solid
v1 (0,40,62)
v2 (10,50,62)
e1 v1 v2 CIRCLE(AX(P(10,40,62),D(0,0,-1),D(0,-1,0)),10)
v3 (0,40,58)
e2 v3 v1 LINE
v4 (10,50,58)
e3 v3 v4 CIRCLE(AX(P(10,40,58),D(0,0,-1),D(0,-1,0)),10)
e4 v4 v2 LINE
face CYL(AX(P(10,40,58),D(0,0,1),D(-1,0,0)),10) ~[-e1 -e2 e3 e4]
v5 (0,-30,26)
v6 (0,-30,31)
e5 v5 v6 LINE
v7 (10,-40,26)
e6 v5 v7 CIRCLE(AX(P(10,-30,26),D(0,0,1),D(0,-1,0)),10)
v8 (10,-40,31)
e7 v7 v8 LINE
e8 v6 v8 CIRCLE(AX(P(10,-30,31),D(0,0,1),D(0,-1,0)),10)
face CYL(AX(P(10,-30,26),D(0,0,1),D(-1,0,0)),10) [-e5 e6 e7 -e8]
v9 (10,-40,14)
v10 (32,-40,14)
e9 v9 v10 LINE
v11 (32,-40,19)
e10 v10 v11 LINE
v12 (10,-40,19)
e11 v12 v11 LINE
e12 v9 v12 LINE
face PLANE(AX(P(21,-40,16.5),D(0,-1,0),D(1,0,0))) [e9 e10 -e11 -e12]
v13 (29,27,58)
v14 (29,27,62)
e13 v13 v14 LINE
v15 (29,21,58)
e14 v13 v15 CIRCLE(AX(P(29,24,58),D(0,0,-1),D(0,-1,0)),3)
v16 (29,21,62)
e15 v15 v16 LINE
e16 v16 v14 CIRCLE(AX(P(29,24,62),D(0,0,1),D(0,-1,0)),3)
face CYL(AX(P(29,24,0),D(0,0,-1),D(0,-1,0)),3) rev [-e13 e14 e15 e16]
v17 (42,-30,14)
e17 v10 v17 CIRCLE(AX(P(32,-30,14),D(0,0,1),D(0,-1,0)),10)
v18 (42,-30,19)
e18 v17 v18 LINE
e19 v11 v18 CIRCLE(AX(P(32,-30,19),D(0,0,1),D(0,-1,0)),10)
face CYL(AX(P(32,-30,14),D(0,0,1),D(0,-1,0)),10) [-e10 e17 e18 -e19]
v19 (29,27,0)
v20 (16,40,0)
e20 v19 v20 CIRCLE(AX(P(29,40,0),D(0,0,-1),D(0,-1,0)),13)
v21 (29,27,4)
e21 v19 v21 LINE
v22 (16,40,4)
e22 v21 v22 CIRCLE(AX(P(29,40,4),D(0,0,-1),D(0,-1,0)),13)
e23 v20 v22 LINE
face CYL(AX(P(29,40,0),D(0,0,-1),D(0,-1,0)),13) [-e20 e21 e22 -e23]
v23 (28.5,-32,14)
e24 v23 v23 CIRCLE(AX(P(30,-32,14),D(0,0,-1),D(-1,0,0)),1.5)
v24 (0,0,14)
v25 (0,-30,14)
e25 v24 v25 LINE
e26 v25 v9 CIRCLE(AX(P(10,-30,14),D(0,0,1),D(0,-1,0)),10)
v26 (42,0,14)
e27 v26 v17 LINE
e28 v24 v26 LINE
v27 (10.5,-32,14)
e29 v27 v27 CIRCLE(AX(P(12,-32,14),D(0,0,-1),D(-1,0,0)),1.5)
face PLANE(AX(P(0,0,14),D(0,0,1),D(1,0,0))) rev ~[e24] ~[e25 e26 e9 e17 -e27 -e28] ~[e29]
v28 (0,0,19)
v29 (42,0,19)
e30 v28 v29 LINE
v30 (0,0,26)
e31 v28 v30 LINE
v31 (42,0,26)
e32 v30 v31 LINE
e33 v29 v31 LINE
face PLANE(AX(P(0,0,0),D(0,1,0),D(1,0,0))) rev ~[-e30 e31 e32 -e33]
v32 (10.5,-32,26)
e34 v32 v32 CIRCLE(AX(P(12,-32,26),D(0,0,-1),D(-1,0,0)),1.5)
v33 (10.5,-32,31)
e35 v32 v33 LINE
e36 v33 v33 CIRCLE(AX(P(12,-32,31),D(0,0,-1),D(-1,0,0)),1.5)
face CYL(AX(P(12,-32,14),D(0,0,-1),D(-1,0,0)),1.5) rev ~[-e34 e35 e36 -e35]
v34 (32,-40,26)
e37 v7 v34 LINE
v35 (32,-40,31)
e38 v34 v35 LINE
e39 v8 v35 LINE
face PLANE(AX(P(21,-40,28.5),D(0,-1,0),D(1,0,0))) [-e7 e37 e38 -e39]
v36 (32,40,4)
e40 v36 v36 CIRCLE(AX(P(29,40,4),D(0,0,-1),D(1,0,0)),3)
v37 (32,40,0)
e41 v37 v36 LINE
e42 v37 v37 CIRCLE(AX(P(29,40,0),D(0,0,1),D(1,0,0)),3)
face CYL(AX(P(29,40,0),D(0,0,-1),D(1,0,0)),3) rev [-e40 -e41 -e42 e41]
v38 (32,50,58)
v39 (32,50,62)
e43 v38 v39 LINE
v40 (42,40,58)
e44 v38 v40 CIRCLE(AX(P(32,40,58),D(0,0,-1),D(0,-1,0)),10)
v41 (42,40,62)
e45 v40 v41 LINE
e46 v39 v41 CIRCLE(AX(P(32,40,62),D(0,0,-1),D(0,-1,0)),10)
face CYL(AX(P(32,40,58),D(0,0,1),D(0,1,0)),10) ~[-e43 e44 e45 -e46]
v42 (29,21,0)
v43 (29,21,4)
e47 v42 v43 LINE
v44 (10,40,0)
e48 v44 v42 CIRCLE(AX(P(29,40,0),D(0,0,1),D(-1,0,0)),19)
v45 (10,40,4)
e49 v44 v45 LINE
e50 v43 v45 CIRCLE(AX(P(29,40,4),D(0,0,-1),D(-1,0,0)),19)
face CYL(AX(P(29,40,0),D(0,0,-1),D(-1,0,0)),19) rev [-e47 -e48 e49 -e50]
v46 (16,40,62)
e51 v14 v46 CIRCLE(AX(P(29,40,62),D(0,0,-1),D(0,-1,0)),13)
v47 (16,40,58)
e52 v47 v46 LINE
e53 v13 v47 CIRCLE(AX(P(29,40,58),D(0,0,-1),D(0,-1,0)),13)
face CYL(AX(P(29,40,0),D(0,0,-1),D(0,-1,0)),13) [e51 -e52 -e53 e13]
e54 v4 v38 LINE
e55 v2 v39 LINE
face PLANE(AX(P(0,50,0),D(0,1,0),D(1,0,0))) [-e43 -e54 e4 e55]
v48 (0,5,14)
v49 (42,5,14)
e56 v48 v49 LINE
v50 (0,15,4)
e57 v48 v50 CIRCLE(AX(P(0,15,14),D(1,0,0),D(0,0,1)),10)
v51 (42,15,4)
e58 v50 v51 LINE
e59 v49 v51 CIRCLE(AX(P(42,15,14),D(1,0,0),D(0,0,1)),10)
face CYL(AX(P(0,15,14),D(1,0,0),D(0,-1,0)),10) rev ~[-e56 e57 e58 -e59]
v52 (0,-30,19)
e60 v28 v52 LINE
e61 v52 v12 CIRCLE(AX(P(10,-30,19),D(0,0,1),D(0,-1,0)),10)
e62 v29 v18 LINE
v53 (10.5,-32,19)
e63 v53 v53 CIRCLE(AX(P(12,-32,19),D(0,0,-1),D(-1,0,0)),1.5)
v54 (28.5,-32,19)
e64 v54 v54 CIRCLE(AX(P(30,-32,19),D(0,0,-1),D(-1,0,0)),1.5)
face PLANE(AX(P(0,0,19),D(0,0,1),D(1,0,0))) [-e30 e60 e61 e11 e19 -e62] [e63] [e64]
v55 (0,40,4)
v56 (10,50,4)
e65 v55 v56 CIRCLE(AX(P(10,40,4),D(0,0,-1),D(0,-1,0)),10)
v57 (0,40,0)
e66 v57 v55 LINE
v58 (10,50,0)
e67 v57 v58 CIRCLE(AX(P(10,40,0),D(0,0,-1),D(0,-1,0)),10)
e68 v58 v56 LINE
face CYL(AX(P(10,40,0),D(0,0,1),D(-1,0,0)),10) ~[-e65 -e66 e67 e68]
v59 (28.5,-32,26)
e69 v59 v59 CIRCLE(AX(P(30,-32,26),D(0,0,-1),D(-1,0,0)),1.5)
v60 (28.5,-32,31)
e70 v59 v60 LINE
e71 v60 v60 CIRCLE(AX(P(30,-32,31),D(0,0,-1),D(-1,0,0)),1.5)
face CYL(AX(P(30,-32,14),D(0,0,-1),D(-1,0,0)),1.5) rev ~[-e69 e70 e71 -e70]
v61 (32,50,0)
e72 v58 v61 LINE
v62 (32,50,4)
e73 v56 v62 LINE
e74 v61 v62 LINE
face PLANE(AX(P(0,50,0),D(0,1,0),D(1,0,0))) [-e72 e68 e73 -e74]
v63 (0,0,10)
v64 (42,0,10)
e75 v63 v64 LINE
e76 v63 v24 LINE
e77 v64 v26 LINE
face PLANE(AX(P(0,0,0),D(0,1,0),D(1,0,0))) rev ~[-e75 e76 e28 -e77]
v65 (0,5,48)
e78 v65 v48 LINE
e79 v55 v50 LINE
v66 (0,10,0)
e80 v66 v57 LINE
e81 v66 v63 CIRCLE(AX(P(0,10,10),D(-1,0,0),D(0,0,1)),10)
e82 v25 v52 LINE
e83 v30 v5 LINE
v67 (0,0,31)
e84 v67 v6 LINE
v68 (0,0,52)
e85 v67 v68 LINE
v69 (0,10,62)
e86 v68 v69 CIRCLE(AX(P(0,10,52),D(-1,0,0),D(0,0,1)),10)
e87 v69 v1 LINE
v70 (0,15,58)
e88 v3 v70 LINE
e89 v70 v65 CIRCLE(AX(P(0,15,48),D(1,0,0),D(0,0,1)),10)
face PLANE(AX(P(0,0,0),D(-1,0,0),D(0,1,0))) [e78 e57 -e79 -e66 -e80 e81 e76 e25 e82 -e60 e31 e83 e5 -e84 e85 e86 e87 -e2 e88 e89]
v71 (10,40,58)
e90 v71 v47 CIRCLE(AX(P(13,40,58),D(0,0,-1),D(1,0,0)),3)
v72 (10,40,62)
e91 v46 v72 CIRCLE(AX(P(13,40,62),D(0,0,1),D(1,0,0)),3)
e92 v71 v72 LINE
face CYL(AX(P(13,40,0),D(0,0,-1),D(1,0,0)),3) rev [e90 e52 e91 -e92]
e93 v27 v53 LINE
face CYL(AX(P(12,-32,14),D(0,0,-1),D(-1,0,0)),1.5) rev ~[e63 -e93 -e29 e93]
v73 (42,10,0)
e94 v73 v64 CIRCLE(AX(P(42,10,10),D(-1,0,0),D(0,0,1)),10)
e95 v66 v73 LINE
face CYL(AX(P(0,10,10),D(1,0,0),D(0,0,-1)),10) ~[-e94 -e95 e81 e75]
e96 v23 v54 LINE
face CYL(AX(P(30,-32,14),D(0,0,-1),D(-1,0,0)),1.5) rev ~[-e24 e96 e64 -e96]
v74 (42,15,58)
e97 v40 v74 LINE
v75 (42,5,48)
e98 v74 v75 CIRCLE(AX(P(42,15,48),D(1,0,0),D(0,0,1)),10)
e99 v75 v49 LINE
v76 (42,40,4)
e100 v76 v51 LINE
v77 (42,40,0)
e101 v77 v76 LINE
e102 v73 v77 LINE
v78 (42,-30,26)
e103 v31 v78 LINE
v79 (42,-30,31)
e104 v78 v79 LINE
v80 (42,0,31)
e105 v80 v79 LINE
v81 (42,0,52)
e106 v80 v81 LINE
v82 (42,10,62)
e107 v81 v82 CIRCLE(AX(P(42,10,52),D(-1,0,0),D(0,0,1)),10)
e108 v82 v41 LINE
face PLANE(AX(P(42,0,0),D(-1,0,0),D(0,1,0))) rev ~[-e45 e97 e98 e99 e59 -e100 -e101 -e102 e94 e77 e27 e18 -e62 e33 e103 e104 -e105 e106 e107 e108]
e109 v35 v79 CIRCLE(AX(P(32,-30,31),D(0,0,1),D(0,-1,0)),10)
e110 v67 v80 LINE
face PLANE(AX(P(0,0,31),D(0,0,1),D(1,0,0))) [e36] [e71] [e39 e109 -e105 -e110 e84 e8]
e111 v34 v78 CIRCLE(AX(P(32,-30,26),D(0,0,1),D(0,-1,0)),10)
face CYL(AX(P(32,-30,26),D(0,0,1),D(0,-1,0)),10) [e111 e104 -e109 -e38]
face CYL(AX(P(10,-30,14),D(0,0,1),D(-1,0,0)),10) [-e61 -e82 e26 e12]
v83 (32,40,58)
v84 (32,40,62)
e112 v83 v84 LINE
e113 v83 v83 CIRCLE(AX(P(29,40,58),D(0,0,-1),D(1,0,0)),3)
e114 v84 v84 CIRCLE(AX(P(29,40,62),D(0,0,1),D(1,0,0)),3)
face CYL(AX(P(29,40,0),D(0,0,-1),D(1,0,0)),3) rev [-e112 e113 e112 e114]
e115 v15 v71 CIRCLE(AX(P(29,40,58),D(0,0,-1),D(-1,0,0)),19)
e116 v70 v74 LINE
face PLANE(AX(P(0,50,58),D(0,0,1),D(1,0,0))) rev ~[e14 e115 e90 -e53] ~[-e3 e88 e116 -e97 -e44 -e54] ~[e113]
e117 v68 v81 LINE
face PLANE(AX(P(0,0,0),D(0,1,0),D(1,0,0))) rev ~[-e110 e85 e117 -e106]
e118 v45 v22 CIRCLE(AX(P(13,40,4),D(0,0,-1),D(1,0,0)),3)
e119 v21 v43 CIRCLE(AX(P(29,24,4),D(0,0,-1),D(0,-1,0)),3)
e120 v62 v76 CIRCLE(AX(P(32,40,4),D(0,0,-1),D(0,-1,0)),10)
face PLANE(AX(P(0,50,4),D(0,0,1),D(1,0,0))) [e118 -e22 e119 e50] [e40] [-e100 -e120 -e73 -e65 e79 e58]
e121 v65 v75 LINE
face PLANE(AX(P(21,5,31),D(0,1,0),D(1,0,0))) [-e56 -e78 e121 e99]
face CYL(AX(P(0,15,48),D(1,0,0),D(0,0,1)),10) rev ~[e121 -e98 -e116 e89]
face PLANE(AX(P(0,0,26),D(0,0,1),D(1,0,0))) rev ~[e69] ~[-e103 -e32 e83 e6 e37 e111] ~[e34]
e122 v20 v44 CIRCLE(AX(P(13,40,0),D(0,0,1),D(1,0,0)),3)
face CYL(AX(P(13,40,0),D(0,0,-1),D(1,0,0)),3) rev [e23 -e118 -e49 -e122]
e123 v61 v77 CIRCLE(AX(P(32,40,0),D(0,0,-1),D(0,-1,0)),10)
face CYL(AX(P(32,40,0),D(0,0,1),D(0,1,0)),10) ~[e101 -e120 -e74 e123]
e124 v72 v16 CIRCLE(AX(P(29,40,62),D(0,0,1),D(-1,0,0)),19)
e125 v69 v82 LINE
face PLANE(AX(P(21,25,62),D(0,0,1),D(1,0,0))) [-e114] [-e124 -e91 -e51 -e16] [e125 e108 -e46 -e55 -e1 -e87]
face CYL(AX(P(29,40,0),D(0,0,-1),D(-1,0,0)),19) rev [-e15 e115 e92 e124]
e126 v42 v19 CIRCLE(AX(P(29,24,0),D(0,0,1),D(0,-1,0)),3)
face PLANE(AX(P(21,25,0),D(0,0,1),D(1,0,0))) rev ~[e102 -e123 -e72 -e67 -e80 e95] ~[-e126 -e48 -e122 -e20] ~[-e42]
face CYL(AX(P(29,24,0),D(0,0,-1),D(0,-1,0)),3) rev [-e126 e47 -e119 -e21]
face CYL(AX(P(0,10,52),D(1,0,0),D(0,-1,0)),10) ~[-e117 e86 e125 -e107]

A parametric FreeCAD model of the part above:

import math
import FreeCAD as App
import Part
import Sketcher
from FreeCAD import Vector
Q = App.Units.Quantity


def edges_at(feature, points):
    """Names of the edges that pass closest to the given points."""
    edges = feature.Shape.Edges
    near = lambda p: min(range(len(edges)), key=lambda i: edges[i].distToShape(Part.Vertex(*p))[0])
    return sorted({f"Edge{near(p) + 1}" for p in points})

doc = App.newDocument("Part")
body = doc.addObject("PartDesign::Body", "Body")

# Sketch on XY plane
sketch1 = doc.addObject("Sketcher::SketchObject", "Sketch")
body.addObject(sketch1)
sketch1.AttachmentSupport = (doc.XY_Plane, [""])
sketch1.MapMode = "FlatFace"
sketch1.addGeometry([
    Part.LineSegment(Vector(0, 50, 0), Vector(0, 0, 0)),  # 0
    Part.LineSegment(Vector(0, 0, 0), Vector(42, 0, 0)),  # 1
    Part.LineSegment(Vector(42, 0, 0), Vector(42, 50, 0)),  # 2
    Part.LineSegment(Vector(42, 50, 0), Vector(0, 50, 0)),  # 3
    Part.ArcOfCircle(Part.Circle(Vector(29, 40, 0), Vector(0, 0, 1), 19), math.radians(180), math.radians(270)),  # 4
    Part.ArcOfCircle(Part.Circle(Vector(13, 40, 0), Vector(0, 0, 1), 3), math.radians(0), math.radians(180)),  # 5
    Part.ArcOfCircle(Part.Circle(Vector(29, 40, 0), Vector(0, 0, 1), 13), math.radians(-180), math.radians(-90)),  # 6
    Part.ArcOfCircle(Part.Circle(Vector(29, 24, 0), Vector(0, 0, 1), 3), math.radians(-90), math.radians(90)),  # 7
    Part.Circle(Vector(29, 40, 0), Vector(0, 0, 1), 3),  # 8
], False)
sketch1.addConstraint([
    Sketcher.Constraint("Coincident", 0, 2, 1, 1),
    Sketcher.Constraint("Coincident", 1, 2, 2, 1),
    Sketcher.Constraint("Coincident", 2, 2, 3, 1),
    Sketcher.Constraint("Coincident", 3, 2, 0, 1),
    Sketcher.Constraint("Tangent", 4, 1, 5, 2),
    Sketcher.Constraint("Tangent", 5, 1, 6, 1),
    Sketcher.Constraint("Tangent", 6, 2, 7, 2),
    Sketcher.Constraint("Tangent", 7, 1, 4, 2),
    Sketcher.Constraint("Vertical", 0),
    Sketcher.Constraint("Horizontal", 1),
    Sketcher.Constraint("Vertical", 2),
    Sketcher.Constraint("Horizontal", 3),
    Sketcher.Constraint("Coincident", 0, 2, -1, 1),
    Sketcher.Constraint("Coincident", 6, 3, 4, 3),
    Sketcher.Constraint("Coincident", 8, 3, 4, 3),
    Sketcher.Constraint("Equal", 7, 8),
    Sketcher.Constraint("Horizontal", 4, 3, 5, 3),
    Sketcher.Constraint("Vertical", 6, 3, 7, 3),
    Sketcher.Constraint("Diameter", 8, Q("6 mm")),
    Sketcher.Constraint("Radius", 4, Q("19 mm")),
    Sketcher.Constraint("DistanceX", 1, 1, 1, 2, Q("42 mm")),
    Sketcher.Constraint("DistanceY", 0, 2, 0, 1, Q("50 mm")),
    Sketcher.Constraint("DistanceX", -1, 1, 4, 3, Q("29 mm")),
    Sketcher.Constraint("DistanceY", -1, 1, 4, 3, Q("40 mm")),
])
pad1 = doc.addObject("PartDesign::Pad", "Pad")
body.addObject(pad1)
pad1.Profile = sketch1
pad1.Length = 62

# Sketch on XZ plane
sketch2 = doc.addObject("Sketcher::SketchObject", "Sketch001")
body.addObject(sketch2)
sketch2.AttachmentSupport = (doc.XZ_Plane, [""])
sketch2.MapMode = "FlatFace"
sketch2.AttachmentOffset = App.Placement(Vector(0, 0, -50), App.Rotation())
sketch2.addGeometry([
    Part.LineSegment(Vector(0, 4, 0), Vector(0, 58, 0)),
    Part.LineSegment(Vector(0, 58, 0), Vector(42, 58, 0)),
    Part.LineSegment(Vector(42, 58, 0), Vector(42, 4, 0)),
    Part.LineSegment(Vector(42, 4, 0), Vector(0, 4, 0)),
], False)
sketch2.addConstraint([
    Sketcher.Constraint("Coincident", 0, 2, 1, 1),
    Sketcher.Constraint("Coincident", 1, 2, 2, 1),
    Sketcher.Constraint("Coincident", 2, 2, 3, 1),
    Sketcher.Constraint("Coincident", 3, 2, 0, 1),
    Sketcher.Constraint("Vertical", 0),
    Sketcher.Constraint("Horizontal", 1),
    Sketcher.Constraint("Vertical", 2),
    Sketcher.Constraint("Horizontal", 3),
    Sketcher.Constraint("PointOnObject", 0, 2, -2),
    Sketcher.Constraint("DistanceX", 1, 1, 1, 2, Q("42 mm")),
    Sketcher.Constraint("DistanceY", 0, 1, 0, 2, Q("54 mm")),
    Sketcher.Constraint("DistanceY", -1, 1, 0, 2, Q("58 mm")),
])
pocket1 = doc.addObject("PartDesign::Pocket", "Pocket")
body.addObject(pocket1)
pocket1.Profile = sketch2
pocket1.Length = 45
pocket1.Reversed = True

# Sketch on XZ plane
sketch3 = doc.addObject("Sketcher::SketchObject", "Sketch002")
body.addObject(sketch3)
sketch3.AttachmentSupport = (doc.XZ_Plane, [""])
sketch3.MapMode = "FlatFace"
sketch3.addGeometry([
    Part.LineSegment(Vector(0, 19, 0), Vector(0, 14, 0)),  # 0
    Part.LineSegment(Vector(0, 14, 0), Vector(42, 14, 0)),  # 1
    Part.LineSegment(Vector(42, 14, 0), Vector(42, 19, 0)),  # 2
    Part.LineSegment(Vector(42, 19, 0), Vector(0, 19, 0)),  # 3
    Part.LineSegment(Vector(0, 31, 0), Vector(0, 26, 0)),  # 4
    Part.LineSegment(Vector(0, 26, 0), Vector(42, 26, 0)),  # 5
    Part.LineSegment(Vector(42, 26, 0), Vector(42, 31, 0)),  # 6
    Part.LineSegment(Vector(42, 31, 0), Vector(0, 31, 0)),  # 7
], False)
sketch3.addConstraint([
    Sketcher.Constraint("Coincident", 0, 2, 1, 1),
    Sketcher.Constraint("Coincident", 1, 2, 2, 1),
    Sketcher.Constraint("Coincident", 2, 2, 3, 1),
    Sketcher.Constraint("Coincident", 3, 2, 0, 1),
    Sketcher.Constraint("Coincident", 4, 2, 5, 1),
    Sketcher.Constraint("Coincident", 5, 2, 6, 1),
    Sketcher.Constraint("Coincident", 6, 2, 7, 1),
    Sketcher.Constraint("Coincident", 7, 2, 4, 1),
    Sketcher.Constraint("Vertical", 0),
    Sketcher.Constraint("Horizontal", 1),
    Sketcher.Constraint("Vertical", 2),
    Sketcher.Constraint("Horizontal", 3),
    Sketcher.Constraint("Vertical", 4),
    Sketcher.Constraint("Horizontal", 5),
    Sketcher.Constraint("Vertical", 6),
    Sketcher.Constraint("Horizontal", 7),
    Sketcher.Constraint("PointOnObject", 0, 2, -2),
    Sketcher.Constraint("PointOnObject", 4, 2, -2),
    Sketcher.Constraint("Vertical", 2, 2, 5, 2),
    Sketcher.Constraint("Equal", 2, 4),
    Sketcher.Constraint("DistanceX", 1, 1, 1, 2, Q("42 mm")),
    Sketcher.Constraint("DistanceY", 0, 2, 0, 1, Q("5 mm")),
    Sketcher.Constraint("DistanceY", -1, 1, 0, 2, Q("14 mm")),
    Sketcher.Constraint("DistanceY", -1, 1, 4, 2, Q("26 mm")),
])
pad2 = doc.addObject("PartDesign::Pad", "Pad001")
body.addObject(pad2)
pad2.Profile = sketch3
pad2.Length = 40

# Sketch on XY plane
sketch4 = doc.addObject("Sketcher::SketchObject", "Sketch003")
body.addObject(sketch4)
sketch4.AttachmentSupport = (doc.XY_Plane, [""])
sketch4.MapMode = "FlatFace"
sketch4.AttachmentOffset = App.Placement(Vector(0, 0, 14), App.Rotation())
sketch4.addGeometry([
    Part.Circle(Vector(30, -32, 0), Vector(0, 0, 1), 1.5),
    Part.Circle(Vector(12, -32, 0), Vector(0, 0, 1), 1.5),
], False)
sketch4.addConstraint([
    Sketcher.Constraint("Equal", 0, 1),
    Sketcher.Constraint("Horizontal", 0, 3, 1, 3),
    Sketcher.Constraint("Diameter", 0, Q("3 mm")),
    Sketcher.Constraint("DistanceX", -1, 1, 0, 3, Q("30 mm")),
    Sketcher.Constraint("DistanceY", 0, 3, -1, 1, Q("32 mm")),
    Sketcher.Constraint("DistanceX", -1, 1, 1, 3, Q("12 mm")),
])
pocket2 = doc.addObject("PartDesign::Pocket", "Pocket001")
body.addObject(pocket2)
pocket2.Profile = sketch4
pocket2.Type = "ThroughAll"
pocket2.Reversed = True
doc.recompute()

fillet = doc.addObject("PartDesign::Fillet", "Fillet")
body.addObject(fillet)
fillet.Base = (pocket2, edges_at(pocket2, [
    (0, 50, 2),
    (42, 50, 2),
    (21, 5, 4),
    (21, 5, 58),
    (21, 0, 62),
    (21, 0, 0),
    (0, -40, 16.5),
    (42, -40, 16.5),
    (0, -40, 28.5),
    (42, -40, 28.5),
    (0, 50, 60),
    (42, 50, 60),
]))
fillet.Radius = 10

doc.recompute()
